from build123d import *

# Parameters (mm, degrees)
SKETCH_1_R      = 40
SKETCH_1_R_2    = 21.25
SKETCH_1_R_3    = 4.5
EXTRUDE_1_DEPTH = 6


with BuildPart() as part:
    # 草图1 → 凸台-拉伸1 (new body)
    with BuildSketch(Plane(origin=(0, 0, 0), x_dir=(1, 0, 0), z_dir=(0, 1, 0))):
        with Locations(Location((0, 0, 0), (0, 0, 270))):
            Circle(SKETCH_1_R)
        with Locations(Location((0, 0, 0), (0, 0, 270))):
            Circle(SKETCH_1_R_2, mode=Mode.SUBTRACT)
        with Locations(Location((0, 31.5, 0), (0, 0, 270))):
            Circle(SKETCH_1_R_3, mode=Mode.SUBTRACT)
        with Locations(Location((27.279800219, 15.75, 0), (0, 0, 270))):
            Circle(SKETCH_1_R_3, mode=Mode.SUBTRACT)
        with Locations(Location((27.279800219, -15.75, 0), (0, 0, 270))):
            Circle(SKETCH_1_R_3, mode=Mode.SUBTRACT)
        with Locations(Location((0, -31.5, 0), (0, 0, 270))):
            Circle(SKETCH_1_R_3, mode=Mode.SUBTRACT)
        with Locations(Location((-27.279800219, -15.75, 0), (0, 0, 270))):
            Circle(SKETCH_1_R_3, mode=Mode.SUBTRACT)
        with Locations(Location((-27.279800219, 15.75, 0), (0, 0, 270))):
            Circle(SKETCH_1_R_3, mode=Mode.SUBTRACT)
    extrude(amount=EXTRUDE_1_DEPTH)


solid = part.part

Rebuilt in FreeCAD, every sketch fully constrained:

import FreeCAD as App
import Part
import Sketcher
from FreeCAD import Vector

doc = App.newDocument("Part")
body = doc.addObject("PartDesign::Body", "Body")

sketch1 = body.newObject("Sketcher::SketchObject", "Sketch")
sketch1.AttachmentSupport = (doc.getObject("XZ_Plane"), [""])
sketch1.MapMode = "FlatFace"
sketch1.addGeometry([
    Part.Circle(Vector(0, 0, 0), Vector(0, 0, 1), 40),
    Part.Circle(Vector(-27.3, -15.8, 0), Vector(0, 0, 1), 4.5),
    Part.Circle(Vector(0, -31.5, 0), Vector(0, 0, 1), 4.5),
    Part.Circle(Vector(-27.3, 15.8, 0), Vector(0, 0, 1), 4.5),
    Part.Circle(Vector(27.3, -15.8, 0), Vector(0, 0, 1), 4.5),
    Part.Circle(Vector(0, 0, 0), Vector(0, 0, 1), 21.2),
    Part.Circle(Vector(0, 31.5, 0), Vector(0, 0, 1), 4.5),
    Part.Circle(Vector(27.3, 15.8, 0), Vector(0, 0, 1), 4.5),
], False)
sketch1.addConstraint([
    Sketcher.Constraint("Coincident", 0, 3, -1, 1),
    Sketcher.Constraint("Coincident", 5, 3, -1, 1),
    Sketcher.Constraint("Equal", 1, 2),
    Sketcher.Constraint("Equal", 2, 3),
    Sketcher.Constraint("Equal", 3, 4),
    Sketcher.Constraint("Equal", 4, 6),
    Sketcher.Constraint("Equal", 6, 7),
    Sketcher.Constraint("Symmetric", 3, 3, 4, 3, -1, 1),
    Sketcher.Constraint("Symmetric", 2, 3, 6, 3, -1, 1),
    Sketcher.Constraint("Symmetric", 1, 3, 7, 3, -1, 1),
    Sketcher.Constraint("Symmetric", 1, 3, 4, 3, -2),
    Sketcher.Constraint("PointOnObject", 2, 3, -2),
    Sketcher.Constraint("Diameter", 0, 80.0),
    Sketcher.Constraint("Diameter", 1, 9.0),
    Sketcher.Constraint("Diameter", 5, 42.5),
    Sketcher.Constraint("DistanceY", 2, 3, -1, 1, 31.5),
    Sketcher.Constraint("DistanceY", 1, 3, 3, 3, 31.5),
    Sketcher.Constraint("DistanceX", 1, 3, -1, 1, 27.2798),
])
pad1 = body.newObject("PartDesign::Pad", "Pad")
pad1.Profile = sketch1
pad1.Length = 6
pad1.Reversed = True

doc.recompute()
